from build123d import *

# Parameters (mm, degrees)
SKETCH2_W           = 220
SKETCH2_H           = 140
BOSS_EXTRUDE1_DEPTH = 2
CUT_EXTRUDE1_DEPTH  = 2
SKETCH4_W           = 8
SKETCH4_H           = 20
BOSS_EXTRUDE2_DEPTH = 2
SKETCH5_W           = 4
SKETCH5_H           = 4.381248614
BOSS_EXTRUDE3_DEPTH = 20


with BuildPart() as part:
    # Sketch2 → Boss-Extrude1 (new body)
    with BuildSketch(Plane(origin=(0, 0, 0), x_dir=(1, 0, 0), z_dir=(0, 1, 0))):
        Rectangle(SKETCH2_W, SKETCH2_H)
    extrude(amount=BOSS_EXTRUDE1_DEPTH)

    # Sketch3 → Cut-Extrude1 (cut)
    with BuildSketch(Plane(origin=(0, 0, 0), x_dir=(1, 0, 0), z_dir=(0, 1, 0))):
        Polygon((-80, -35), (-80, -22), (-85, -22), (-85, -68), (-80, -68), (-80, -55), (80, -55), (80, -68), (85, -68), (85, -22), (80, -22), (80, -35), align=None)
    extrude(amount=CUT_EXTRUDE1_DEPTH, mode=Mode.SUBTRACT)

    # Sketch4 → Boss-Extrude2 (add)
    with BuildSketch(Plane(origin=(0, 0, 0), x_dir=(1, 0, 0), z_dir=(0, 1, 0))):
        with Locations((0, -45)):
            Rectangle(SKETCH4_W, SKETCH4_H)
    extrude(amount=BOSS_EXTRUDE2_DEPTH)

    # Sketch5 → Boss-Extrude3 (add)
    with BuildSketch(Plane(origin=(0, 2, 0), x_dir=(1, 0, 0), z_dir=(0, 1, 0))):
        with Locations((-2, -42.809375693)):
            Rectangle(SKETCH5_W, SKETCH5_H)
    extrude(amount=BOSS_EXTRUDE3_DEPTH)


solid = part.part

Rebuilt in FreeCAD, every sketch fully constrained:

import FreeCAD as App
import Part
import Sketcher

V = App.Vector

doc = App.newDocument("Part")
body = doc.addObject("PartDesign::Body", "Body")

# Sketch on XZ plane
sketch1 = body.newObject("Sketcher::SketchObject", "Sketch")
sketch1.AttachmentSupport = (doc.getObject("XZ_Plane"), [""])
sketch1.MapMode = "FlatFace"
sketch1.addGeometry([
    Part.LineSegment(V(-110, -70, 0), V(-110, 70, 0)),
    Part.LineSegment(V(-110, 70, 0), V(110, 70, 0)),
    Part.LineSegment(V(110, 70, 0), V(110, -70, 0)),
    Part.LineSegment(V(110, -70, 0), V(-110, -70, 0)),
], False)
sketch1.addConstraint([
    Sketcher.Constraint("Coincident", 0, 2, 1, 1),
    Sketcher.Constraint("Coincident", 1, 2, 2, 1),
    Sketcher.Constraint("Coincident", 2, 2, 3, 1),
    Sketcher.Constraint("Coincident", 3, 2, 0, 1),
    Sketcher.Constraint("Vertical", 0),
    Sketcher.Constraint("Horizontal", 1),
    Sketcher.Constraint("Vertical", 2),
    Sketcher.Constraint("Horizontal", 3),
    Sketcher.Constraint("Symmetric", 0, 2, 2, 2, -1, 1),
    Sketcher.Constraint("DistanceX", 1, 1, 1, 2, 220.0),
    Sketcher.Constraint("DistanceY", 0, 1, 0, 2, 140.0),
])
pad1 = body.newObject("PartDesign::Pad", "Pad")
pad1.Profile = sketch1
pad1.Length = 2
pad1.Reversed = True

# Sketch on XZ plane
sketch2 = body.newObject("Sketcher::SketchObject", "Sketch001")
sketch2.AttachmentSupport = (doc.getObject("XZ_Plane"), [""])
sketch2.MapMode = "FlatFace"
sketch2.addGeometry([
    Part.LineSegment(V(-80, 35, 0), V(-80, 22, 0)),  # 0
    Part.LineSegment(V(-80, 22, 0), V(-85, 22, 0)),  # 1
    Part.LineSegment(V(-85, 22, 0), V(-85, 68, 0)),  # 2
    Part.LineSegment(V(-85, 68, 0), V(-80, 68, 0)),  # 3
    Part.LineSegment(V(-80, 68, 0), V(-80, 55, 0)),  # 4
    Part.LineSegment(V(-80, 55, 0), V(80, 55, 0)),  # 5
    Part.LineSegment(V(80, 55, 0), V(80, 68, 0)),  # 6
    Part.LineSegment(V(80, 68, 0), V(85, 68, 0)),  # 7
    Part.LineSegment(V(85, 68, 0), V(85, 22, 0)),  # 8
    Part.LineSegment(V(85, 22, 0), V(80, 22, 0)),  # 9
    Part.LineSegment(V(80, 22, 0), V(80, 35, 0)),  # 10
    Part.LineSegment(V(80, 35, 0), V(-80, 35, 0)),  # 11
], False)
sketch2.addConstraint([
    Sketcher.Constraint("Coincident", 0, 2, 1, 1),
    Sketcher.Constraint("Coincident", 1, 2, 2, 1),
    Sketcher.Constraint("Coincident", 2, 2, 3, 1),
    Sketcher.Constraint("Coincident", 3, 2, 4, 1),
    Sketcher.Constraint("Coincident", 4, 2, 5, 1),
    Sketcher.Constraint("Coincident", 5, 2, 6, 1),
    Sketcher.Constraint("Coincident", 6, 2, 7, 1),
    Sketcher.Constraint("Coincident", 7, 2, 8, 1),
    Sketcher.Constraint("Coincident", 8, 2, 9, 1),
    Sketcher.Constraint("Coincident", 9, 2, 10, 1),
    Sketcher.Constraint("Coincident", 10, 2, 11, 1),
    Sketcher.Constraint("Coincident", 11, 2, 0, 1),
    Sketcher.Constraint("Vertical", 0),
    Sketcher.Constraint("Horizontal", 1),
    Sketcher.Constraint("Vertical", 2),
    Sketcher.Constraint("Horizontal", 3),
    Sketcher.Constraint("Vertical", 4),
    Sketcher.Constraint("Horizontal", 5),
    Sketcher.Constraint("Vertical", 6),
    Sketcher.Constraint("Horizontal", 7),
    Sketcher.Constraint("Vertical", 8),
    Sketcher.Constraint("Horizontal", 9),
    Sketcher.Constraint("Vertical", 10),
    Sketcher.Constraint("Horizontal", 11),
    Sketcher.Constraint("Symmetric", 3, 2, 6, 2, -2),
    Sketcher.Constraint("Symmetric", 1, 2, 8, 2, -2),
    Sketcher.Constraint("Vertical", 0, 2, 3, 2),
    Sketcher.Constraint("Vertical", 6, 2, 9, 2),
    Sketcher.Constraint("Equal", 0, 4),
    Sketcher.Constraint("DistanceX", 1, 2, 1, 1, 5.0),
    Sketcher.Constraint("DistanceX", 5, 1, 5, 2, 160.0),
    Sketcher.Constraint("DistanceY", 0, 2, 0, 1, 13.0),
    Sketcher.Constraint("DistanceY", 2, 1, 2, 2, 46.0),
    Sketcher.Constraint("DistanceY", -1, 1, 0, 2, 22.0),
])
pocket1 = body.newObject("PartDesign::Pocket", "Pocket")
pocket1.Profile = sketch2
pocket1.Length = 2

# Sketch on XZ plane
sketch3 = body.newObject("Sketcher::SketchObject", "Sketch002")
sketch3.AttachmentSupport = (doc.getObject("XZ_Plane"), [""])
sketch3.MapMode = "FlatFace"
sketch3.addGeometry([
    Part.LineSegment(V(-4, 35, 0), V(-4, 55, 0)),
    Part.LineSegment(V(-4, 55, 0), V(4, 55, 0)),
    Part.LineSegment(V(4, 55, 0), V(4, 35, 0)),
    Part.LineSegment(V(4, 35, 0), V(-4, 35, 0)),
], False)
sketch3.addConstraint([
    Sketcher.Constraint("Coincident", 0, 2, 1, 1),
    Sketcher.Constraint("Coincident", 1, 2, 2, 1),
    Sketcher.Constraint("Coincident", 2, 2, 3, 1),
    Sketcher.Constraint("Coincident", 3, 2, 0, 1),
    Sketcher.Constraint("Vertical", 0),
    Sketcher.Constraint("Horizontal", 1),
    Sketcher.Constraint("Vertical", 2),
    Sketcher.Constraint("Horizontal", 3),
    Sketcher.Constraint("DistanceX", 1, 1, 1, 2, 8.0),
    Sketcher.Constraint("DistanceY", 0, 1, 0, 2, 20.0),
    Sketcher.Constraint("DistanceX", 0, 2, -1, 1, 4.0),
    Sketcher.Constraint("DistanceY", -1, 1, 0, 2, 55.0),
])
pad2 = body.newObject("PartDesign::Pad", "Pad001")
pad2.Profile = sketch3
pad2.Length = 2
pad2.Reversed = True

# Sketch on XZ plane
sketch4 = body.newObject("Sketcher::SketchObject", "Sketch003")
sketch4.AttachmentSupport = (doc.getObject("XZ_Plane"), [""])
sketch4.MapMode = "FlatFace"
sketch4.AttachmentOffset = App.Placement(V(0, 0, -2), App.Rotation())
sketch4.addGeometry([
    Part.LineSegment(V(-4, 40.618751, 0), V(-4, 45, 0)),
    Part.LineSegment(V(-4, 45, 0), V(0, 45, 0)),
    Part.LineSegment(V(0, 45, 0), V(0, 40.618751, 0)),
    Part.LineSegment(V(0, 40.618751, 0), V(-4, 40.618751, 0)),
], False)
sketch4.addConstraint([
    Sketcher.Constraint("Coincident", 0, 2, 1, 1),
    Sketcher.Constraint("Coincident", 1, 2, 2, 1),
    Sketcher.Constraint("Coincident", 2, 2, 3, 1),
    Sketcher.Constraint("Coincident", 3, 2, 0, 1),
    Sketcher.Constraint("Vertical", 0),
    Sketcher.Constraint("Horizontal", 1),
    Sketcher.Constraint("Vertical", 2),
    Sketcher.Constraint("Horizontal", 3),
    Sketcher.Constraint("PointOnObject", 1, 2, -2),
    Sketcher.Constraint("DistanceX", 1, 1, 1, 2, 4.0),
    Sketcher.Constraint("DistanceY", -1, 1, 0, 2, 45.0),
    Sketcher.Constraint("DistanceY", 0, 1, 0, 2, 4.381249),
])
pad3 = body.newObject("PartDesign::Pad", "Pad002")
pad3.Profile = sketch4
pad3.Length = 20
pad3.Reversed = True

doc.recompute()
